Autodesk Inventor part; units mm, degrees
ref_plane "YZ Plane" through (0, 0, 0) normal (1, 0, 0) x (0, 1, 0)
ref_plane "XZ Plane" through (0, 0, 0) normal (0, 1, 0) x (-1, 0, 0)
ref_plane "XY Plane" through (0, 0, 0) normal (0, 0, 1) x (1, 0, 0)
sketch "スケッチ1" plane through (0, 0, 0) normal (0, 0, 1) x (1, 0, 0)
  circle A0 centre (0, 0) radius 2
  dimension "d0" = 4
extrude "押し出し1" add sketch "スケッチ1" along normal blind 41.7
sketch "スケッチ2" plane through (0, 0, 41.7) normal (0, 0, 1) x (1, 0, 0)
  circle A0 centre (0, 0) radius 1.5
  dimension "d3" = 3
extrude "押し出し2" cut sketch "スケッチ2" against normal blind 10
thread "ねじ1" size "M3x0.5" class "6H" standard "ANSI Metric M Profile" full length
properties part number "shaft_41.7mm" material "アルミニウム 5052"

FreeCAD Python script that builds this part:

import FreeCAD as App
import Part
import Sketcher

doc = App.newDocument("Part")
body = doc.addObject("PartDesign::Body", "Body")

sketch1 = body.newObject("Sketcher::SketchObject", "Sketch")
sketch1.AttachmentSupport = (doc.getObject("XY_Plane"), [""])
sketch1.MapMode = "FlatFace"
sketch1.addGeometry(Part.Circle(App.Vector(0, 0, 0), App.Vector(0, 0, 1), 2), False)
sketch1.addConstraint([
    Sketcher.Constraint("Coincident", 0, 3, -1, 1),
    Sketcher.Constraint("Diameter", 0, 4.0),
])
pad1 = body.newObject("PartDesign::Pad", "Pad")
pad1.Profile = sketch1
pad1.Length = 41.7

sketch2 = body.newObject("Sketcher::SketchObject", "Sketch001")
sketch2.AttachmentSupport = (doc.getObject("XY_Plane"), [""])
sketch2.MapMode = "FlatFace"
sketch2.AttachmentOffset = App.Placement(App.Vector(0, 0, 41.7), App.Rotation())
sketch2.addGeometry(Part.Circle(App.Vector(0, 0, 0), App.Vector(0, 0, 1), 1.5), False)
sketch2.addConstraint([
    Sketcher.Constraint("Coincident", 0, 3, -1, 1),
    Sketcher.Constraint("Diameter", 0, 3.0),
])
pocket1 = body.newObject("PartDesign::Pocket", "Pocket")
pocket1.Profile = sketch2
pocket1.Length = 10

doc.recompute()
